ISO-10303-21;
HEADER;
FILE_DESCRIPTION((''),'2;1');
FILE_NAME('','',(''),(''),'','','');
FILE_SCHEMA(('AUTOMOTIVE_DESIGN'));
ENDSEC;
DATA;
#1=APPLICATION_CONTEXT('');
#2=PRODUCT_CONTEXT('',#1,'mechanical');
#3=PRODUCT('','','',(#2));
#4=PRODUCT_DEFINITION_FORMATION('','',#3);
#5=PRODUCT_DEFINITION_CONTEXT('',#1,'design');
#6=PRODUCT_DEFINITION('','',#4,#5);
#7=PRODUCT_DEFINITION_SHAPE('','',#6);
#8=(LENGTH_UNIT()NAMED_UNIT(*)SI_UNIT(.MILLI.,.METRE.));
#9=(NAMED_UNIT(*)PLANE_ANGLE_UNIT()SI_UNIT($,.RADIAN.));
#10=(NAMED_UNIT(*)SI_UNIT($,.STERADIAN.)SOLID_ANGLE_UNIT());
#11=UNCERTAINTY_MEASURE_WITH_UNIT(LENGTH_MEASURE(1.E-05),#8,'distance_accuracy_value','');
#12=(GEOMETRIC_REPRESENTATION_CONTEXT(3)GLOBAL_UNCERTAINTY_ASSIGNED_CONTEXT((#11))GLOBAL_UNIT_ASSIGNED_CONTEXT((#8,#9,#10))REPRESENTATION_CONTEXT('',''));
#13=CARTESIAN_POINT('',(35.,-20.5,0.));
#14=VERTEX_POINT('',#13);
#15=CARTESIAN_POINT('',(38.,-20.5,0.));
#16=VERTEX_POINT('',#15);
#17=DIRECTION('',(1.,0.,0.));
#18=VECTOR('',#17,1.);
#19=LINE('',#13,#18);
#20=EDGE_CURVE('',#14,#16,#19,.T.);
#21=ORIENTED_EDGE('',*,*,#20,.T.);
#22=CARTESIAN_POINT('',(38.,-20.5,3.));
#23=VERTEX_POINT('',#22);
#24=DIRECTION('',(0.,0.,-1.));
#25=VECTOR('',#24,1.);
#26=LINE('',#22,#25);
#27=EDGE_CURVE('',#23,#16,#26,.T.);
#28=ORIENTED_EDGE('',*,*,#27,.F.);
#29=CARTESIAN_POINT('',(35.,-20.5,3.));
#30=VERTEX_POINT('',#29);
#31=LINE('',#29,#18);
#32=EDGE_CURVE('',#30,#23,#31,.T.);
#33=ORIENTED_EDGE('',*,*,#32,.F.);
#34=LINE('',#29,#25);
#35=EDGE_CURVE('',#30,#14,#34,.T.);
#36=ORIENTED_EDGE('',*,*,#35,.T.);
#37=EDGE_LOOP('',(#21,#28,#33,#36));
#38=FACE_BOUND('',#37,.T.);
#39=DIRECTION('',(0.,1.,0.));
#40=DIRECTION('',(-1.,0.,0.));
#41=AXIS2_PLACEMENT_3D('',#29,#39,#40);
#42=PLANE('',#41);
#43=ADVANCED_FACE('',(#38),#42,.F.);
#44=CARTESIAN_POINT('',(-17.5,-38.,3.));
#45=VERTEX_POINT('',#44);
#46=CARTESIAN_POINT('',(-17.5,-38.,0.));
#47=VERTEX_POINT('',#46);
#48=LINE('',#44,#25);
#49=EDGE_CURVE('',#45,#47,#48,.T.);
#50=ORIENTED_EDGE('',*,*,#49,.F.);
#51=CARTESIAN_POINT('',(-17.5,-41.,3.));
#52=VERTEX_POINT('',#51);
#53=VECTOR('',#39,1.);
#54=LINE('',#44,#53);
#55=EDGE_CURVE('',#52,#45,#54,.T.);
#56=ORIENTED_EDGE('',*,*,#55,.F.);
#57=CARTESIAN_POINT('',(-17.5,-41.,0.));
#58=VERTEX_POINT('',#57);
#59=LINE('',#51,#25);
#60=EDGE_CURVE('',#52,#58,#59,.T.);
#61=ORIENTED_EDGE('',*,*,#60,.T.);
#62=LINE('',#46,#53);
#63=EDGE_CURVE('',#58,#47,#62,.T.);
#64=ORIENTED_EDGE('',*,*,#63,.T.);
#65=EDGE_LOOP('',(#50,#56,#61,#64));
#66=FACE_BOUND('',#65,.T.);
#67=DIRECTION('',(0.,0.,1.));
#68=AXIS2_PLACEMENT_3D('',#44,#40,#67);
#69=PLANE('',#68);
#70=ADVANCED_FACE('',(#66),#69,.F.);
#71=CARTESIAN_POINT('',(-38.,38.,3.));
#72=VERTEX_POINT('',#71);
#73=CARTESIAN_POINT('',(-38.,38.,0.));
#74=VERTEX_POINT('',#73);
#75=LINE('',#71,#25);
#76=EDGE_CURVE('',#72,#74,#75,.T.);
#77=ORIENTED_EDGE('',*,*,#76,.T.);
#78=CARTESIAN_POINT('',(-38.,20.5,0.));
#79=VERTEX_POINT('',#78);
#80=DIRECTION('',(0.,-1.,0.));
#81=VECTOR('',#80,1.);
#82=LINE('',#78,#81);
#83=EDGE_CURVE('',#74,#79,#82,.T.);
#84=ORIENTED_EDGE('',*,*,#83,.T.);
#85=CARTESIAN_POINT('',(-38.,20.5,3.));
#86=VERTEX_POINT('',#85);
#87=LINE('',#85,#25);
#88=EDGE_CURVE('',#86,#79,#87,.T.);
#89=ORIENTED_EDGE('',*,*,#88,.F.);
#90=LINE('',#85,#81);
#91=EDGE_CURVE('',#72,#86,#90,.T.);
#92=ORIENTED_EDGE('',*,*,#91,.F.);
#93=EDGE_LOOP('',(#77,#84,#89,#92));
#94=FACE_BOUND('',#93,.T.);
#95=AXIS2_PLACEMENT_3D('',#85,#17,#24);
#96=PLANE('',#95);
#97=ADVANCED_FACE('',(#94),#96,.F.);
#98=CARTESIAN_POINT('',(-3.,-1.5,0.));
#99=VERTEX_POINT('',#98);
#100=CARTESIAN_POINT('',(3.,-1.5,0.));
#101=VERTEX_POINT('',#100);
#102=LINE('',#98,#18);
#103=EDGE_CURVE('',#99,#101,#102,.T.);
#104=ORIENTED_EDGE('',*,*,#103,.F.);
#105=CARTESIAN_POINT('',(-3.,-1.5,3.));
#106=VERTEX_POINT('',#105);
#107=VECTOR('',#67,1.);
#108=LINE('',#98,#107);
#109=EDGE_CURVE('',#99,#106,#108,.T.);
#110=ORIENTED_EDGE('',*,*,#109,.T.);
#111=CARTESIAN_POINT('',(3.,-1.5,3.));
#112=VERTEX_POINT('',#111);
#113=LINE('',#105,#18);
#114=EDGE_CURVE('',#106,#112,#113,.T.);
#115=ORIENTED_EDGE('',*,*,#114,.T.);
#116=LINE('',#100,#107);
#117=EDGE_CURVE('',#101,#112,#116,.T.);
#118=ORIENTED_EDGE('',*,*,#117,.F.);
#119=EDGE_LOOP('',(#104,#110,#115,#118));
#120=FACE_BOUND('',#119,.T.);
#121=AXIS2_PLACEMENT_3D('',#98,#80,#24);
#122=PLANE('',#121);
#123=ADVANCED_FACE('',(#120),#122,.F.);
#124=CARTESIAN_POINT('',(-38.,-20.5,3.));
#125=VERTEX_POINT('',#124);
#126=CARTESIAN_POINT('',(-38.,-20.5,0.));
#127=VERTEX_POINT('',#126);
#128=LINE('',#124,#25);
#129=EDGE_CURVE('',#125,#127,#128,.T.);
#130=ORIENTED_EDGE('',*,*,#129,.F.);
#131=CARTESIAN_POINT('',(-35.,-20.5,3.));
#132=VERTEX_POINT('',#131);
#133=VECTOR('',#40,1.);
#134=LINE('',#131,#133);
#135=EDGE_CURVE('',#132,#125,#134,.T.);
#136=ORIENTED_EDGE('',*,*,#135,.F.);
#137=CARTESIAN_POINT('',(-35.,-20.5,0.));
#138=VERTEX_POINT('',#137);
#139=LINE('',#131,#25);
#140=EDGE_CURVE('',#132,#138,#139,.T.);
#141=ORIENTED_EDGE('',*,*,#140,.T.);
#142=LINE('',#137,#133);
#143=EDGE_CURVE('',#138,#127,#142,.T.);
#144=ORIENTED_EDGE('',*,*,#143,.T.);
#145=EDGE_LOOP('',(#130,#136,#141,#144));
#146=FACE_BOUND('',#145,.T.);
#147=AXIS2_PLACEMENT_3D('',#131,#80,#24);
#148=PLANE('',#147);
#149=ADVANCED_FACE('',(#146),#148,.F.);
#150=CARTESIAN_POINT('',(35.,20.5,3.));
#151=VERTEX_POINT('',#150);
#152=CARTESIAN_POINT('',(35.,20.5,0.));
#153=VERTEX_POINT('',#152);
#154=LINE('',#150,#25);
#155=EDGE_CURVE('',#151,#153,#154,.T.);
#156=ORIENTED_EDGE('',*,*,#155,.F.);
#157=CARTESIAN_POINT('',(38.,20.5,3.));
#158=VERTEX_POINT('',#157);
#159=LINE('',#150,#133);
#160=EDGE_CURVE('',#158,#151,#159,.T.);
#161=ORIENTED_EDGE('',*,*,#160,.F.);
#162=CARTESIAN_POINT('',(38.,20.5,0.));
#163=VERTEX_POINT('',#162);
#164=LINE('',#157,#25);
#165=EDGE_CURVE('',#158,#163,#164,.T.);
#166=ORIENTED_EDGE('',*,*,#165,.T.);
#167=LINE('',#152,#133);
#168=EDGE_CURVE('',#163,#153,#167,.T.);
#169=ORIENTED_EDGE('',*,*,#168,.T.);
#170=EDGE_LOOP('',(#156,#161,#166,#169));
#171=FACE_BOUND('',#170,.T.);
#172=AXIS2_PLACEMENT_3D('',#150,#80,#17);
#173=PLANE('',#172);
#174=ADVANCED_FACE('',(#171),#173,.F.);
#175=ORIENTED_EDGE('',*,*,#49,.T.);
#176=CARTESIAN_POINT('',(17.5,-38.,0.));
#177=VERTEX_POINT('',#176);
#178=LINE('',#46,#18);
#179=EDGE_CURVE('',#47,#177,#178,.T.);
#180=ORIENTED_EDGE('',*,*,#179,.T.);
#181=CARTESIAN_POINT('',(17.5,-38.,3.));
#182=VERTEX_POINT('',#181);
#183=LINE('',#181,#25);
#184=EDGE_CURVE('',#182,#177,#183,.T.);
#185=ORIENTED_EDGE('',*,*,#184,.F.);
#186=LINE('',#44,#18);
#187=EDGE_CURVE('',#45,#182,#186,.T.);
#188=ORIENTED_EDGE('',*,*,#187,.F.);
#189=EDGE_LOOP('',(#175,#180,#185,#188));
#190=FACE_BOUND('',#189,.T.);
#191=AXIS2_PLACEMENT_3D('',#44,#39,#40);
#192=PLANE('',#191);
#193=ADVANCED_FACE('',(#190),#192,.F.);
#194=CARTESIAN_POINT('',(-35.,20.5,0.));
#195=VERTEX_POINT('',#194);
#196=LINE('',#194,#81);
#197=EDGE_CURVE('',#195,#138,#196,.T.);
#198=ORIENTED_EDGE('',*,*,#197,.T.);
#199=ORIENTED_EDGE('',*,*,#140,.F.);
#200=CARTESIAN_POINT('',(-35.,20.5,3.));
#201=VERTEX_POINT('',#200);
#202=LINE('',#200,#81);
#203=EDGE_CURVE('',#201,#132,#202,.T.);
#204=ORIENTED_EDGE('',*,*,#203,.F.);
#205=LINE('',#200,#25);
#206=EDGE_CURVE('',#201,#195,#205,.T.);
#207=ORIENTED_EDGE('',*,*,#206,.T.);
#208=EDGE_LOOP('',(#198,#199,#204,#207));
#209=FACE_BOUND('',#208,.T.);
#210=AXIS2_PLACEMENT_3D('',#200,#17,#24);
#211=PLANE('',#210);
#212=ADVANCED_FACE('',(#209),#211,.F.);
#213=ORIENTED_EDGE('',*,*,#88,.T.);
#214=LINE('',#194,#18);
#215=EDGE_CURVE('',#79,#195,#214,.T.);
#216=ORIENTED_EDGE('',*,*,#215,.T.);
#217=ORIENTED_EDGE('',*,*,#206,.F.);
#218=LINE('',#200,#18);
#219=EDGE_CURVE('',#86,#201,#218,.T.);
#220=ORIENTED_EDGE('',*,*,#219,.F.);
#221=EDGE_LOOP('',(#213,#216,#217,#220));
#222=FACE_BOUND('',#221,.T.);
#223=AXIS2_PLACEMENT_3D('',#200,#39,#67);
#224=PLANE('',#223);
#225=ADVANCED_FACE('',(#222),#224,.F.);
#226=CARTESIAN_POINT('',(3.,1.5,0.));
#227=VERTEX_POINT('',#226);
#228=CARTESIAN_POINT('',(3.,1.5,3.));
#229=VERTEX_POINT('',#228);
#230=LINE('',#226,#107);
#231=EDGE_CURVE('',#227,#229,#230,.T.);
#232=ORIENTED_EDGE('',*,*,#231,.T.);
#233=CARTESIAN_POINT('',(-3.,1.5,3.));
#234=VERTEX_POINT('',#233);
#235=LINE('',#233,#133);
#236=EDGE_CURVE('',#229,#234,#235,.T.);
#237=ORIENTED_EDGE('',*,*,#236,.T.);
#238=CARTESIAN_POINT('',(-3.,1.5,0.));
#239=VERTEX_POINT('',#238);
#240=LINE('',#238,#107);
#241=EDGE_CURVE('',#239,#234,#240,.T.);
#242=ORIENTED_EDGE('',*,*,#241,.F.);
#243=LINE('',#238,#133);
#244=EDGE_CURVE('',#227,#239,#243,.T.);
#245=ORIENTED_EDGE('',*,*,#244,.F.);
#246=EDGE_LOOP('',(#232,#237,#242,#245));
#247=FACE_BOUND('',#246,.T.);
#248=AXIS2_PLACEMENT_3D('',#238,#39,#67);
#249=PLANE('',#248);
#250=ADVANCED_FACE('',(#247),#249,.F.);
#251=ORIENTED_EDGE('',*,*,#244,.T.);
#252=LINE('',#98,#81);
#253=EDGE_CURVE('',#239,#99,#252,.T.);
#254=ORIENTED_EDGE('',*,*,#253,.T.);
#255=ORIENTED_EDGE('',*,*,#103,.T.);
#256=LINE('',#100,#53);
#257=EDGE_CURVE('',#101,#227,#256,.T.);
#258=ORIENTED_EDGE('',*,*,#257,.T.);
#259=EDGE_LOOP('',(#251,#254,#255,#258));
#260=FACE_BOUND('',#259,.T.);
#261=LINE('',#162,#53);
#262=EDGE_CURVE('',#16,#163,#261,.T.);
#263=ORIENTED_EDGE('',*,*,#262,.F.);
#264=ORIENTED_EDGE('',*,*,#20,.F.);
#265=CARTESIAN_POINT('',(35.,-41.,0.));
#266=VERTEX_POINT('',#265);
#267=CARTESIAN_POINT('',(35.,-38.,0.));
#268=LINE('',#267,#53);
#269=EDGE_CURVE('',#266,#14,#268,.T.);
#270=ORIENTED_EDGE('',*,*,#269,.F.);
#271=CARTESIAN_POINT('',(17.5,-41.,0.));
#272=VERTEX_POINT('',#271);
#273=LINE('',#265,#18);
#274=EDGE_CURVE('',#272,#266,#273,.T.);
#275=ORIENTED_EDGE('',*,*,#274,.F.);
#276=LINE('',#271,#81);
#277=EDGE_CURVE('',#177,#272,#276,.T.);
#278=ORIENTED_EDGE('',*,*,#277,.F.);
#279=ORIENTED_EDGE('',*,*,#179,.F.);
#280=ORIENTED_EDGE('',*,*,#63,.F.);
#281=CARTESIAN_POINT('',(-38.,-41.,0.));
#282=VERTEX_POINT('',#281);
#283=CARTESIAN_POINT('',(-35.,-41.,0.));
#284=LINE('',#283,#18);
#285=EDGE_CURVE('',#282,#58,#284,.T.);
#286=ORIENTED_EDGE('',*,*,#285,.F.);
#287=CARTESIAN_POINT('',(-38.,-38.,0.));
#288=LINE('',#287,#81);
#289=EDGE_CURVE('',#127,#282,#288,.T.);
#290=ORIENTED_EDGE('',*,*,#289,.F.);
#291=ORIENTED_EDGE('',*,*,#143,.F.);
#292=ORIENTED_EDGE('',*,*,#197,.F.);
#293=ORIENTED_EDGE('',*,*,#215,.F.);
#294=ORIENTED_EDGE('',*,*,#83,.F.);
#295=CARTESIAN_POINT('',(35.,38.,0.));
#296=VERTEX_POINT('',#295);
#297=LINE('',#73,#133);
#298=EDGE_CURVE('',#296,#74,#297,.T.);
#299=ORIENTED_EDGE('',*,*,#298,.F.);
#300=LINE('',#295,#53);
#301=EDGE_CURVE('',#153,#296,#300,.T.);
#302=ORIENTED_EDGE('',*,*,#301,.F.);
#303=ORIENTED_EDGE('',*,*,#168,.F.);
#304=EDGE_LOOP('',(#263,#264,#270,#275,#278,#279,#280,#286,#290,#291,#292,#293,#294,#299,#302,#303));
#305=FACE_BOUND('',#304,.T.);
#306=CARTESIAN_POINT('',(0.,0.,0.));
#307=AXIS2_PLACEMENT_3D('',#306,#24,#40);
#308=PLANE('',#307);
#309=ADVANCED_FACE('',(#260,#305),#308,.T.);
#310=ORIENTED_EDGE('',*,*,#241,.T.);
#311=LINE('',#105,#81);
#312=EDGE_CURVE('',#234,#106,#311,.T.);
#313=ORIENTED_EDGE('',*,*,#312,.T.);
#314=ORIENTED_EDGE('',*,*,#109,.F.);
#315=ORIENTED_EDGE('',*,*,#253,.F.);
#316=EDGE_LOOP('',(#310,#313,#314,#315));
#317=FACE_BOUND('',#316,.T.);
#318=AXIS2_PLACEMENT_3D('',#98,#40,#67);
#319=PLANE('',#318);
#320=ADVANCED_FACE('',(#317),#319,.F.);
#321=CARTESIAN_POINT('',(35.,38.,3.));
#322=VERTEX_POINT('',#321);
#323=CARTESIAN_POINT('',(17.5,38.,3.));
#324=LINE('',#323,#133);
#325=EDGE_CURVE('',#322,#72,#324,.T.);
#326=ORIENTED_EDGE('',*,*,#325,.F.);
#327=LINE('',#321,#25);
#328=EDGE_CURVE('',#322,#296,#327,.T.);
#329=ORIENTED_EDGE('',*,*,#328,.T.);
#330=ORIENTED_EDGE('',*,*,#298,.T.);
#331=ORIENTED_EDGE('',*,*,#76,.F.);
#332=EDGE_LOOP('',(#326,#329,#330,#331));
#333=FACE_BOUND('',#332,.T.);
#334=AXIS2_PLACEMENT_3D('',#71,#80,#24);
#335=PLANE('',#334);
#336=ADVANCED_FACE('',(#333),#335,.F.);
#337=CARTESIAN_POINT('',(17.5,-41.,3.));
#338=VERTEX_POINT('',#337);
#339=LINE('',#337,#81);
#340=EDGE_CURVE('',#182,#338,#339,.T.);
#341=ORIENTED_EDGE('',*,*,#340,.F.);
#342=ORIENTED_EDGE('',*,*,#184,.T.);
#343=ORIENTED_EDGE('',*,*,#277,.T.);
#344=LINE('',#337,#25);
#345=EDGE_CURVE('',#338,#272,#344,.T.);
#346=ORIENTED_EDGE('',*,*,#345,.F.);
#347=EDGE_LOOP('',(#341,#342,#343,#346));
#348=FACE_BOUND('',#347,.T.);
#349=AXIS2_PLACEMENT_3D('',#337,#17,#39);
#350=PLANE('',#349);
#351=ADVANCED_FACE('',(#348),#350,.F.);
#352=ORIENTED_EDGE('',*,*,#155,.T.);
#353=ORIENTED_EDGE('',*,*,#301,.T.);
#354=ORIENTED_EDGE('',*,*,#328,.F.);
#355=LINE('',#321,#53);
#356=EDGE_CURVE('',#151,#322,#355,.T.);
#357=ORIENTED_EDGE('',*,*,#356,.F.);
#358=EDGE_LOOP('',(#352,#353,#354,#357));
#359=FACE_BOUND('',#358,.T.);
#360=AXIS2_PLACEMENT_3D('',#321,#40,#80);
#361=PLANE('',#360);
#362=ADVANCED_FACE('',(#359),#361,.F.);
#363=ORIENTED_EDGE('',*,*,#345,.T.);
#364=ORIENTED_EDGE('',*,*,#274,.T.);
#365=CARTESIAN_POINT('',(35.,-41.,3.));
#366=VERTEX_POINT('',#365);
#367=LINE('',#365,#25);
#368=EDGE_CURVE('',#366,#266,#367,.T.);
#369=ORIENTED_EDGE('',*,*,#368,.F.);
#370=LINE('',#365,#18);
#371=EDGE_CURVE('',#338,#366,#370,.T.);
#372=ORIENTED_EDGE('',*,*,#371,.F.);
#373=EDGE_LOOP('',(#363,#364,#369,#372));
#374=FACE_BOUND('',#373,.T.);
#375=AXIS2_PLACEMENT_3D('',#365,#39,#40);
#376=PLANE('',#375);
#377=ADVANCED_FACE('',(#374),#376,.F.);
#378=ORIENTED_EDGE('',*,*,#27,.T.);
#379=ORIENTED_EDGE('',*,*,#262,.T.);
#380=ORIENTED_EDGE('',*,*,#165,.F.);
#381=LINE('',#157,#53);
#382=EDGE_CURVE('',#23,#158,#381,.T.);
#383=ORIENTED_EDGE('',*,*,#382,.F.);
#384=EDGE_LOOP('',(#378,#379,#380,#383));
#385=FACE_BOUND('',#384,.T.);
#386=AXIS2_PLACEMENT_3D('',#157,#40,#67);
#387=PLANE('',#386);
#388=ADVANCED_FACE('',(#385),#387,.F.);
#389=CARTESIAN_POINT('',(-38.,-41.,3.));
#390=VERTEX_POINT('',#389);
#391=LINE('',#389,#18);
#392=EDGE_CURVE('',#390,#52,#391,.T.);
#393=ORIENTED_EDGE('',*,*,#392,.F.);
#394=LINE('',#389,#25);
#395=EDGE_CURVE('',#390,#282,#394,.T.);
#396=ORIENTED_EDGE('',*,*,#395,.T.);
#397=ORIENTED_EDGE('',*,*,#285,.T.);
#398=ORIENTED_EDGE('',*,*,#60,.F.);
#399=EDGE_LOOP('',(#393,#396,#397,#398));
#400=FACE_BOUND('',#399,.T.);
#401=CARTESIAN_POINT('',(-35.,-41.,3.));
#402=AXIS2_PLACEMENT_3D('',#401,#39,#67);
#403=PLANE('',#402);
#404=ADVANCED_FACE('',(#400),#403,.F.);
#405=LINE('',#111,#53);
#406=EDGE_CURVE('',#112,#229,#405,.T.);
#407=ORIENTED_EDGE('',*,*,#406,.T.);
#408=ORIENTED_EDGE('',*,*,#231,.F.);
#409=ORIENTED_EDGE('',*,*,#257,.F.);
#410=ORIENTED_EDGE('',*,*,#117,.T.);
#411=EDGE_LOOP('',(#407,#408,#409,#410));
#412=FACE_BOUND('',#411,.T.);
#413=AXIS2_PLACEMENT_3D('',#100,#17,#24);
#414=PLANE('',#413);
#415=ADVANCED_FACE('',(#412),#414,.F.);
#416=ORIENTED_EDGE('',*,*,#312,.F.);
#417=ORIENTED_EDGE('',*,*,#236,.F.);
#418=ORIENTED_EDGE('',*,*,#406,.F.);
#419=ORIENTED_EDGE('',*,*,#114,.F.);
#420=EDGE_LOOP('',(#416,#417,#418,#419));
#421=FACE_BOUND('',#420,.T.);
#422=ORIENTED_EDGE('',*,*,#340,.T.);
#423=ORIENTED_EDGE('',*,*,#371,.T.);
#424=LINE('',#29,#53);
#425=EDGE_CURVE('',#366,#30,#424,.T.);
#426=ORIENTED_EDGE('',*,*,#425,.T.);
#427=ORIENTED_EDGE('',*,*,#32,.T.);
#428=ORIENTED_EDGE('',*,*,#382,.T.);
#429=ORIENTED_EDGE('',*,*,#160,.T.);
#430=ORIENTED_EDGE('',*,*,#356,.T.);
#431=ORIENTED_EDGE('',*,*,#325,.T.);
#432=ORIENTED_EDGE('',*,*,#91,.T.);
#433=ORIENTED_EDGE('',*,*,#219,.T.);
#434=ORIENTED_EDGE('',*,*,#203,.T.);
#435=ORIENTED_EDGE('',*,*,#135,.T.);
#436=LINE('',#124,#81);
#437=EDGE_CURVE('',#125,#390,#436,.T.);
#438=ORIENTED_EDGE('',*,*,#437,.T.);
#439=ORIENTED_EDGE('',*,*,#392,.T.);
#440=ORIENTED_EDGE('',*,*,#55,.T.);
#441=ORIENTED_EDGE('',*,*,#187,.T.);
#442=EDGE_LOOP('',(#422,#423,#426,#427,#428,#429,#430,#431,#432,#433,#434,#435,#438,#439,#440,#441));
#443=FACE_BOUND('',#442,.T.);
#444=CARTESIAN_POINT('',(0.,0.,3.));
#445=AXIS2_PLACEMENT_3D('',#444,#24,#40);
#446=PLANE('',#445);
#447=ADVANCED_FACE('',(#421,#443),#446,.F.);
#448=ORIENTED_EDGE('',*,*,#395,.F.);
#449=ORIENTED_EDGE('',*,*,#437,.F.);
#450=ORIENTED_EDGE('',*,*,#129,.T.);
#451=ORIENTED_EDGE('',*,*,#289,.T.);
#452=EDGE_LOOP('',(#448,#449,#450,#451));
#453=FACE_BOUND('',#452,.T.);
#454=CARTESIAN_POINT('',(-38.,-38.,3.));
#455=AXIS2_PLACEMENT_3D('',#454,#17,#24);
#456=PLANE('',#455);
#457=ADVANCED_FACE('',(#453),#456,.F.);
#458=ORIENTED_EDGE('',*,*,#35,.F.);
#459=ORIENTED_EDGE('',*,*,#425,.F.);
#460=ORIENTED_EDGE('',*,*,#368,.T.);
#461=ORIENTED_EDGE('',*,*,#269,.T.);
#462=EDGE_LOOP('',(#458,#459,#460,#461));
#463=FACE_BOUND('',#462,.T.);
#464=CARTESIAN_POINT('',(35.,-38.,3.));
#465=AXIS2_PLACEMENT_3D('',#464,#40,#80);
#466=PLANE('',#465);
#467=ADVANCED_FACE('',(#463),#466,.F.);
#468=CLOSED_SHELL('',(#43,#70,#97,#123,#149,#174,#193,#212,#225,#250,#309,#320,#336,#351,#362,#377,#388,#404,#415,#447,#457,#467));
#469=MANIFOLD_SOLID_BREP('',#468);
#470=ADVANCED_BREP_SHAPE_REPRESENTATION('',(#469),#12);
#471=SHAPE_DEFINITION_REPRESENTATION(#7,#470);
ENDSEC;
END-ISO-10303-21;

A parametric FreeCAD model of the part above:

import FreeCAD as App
import Part
import Sketcher

V = App.Vector
Q = App.Units.Quantity

doc = App.newDocument("Part")
body = doc.addObject("PartDesign::Body", "Body")

# Sketch on XY plane
sketch1 = doc.addObject("Sketcher::SketchObject", "Sketch")
body.addObject(sketch1)
sketch1.AttachmentSupport = (doc.XY_Plane, [""])
sketch1.MapMode = "FlatFace"
sketch1.addGeometry([
    Part.LineSegment(V(35, 38, 0), V(-38, 38, 0)),  # 0
    Part.LineSegment(V(-38, 38, 0), V(-38, 20.5, 0)),  # 1
    Part.LineSegment(V(-38, 20.5, 0), V(-35, 20.5, 0)),  # 2
    Part.LineSegment(V(-35, 20.5, 0), V(-35, -20.5, 0)),  # 3
    Part.LineSegment(V(-35, -20.5, 0), V(-38, -20.5, 0)),  # 4
    Part.LineSegment(V(-38, -20.5, 0), V(-38, -41, 0)),  # 5
    Part.LineSegment(V(-38, -41, 0), V(-17.5, -41, 0)),  # 6
    Part.LineSegment(V(-17.5, -41, 0), V(-17.5, -38, 0)),  # 7
    Part.LineSegment(V(-17.5, -38, 0), V(17.5, -38, 0)),  # 8
    Part.LineSegment(V(17.5, -38, 0), V(17.5, -41, 0)),  # 9
    Part.LineSegment(V(17.5, -41, 0), V(35, -41, 0)),  # 10
    Part.LineSegment(V(35, -41, 0), V(35, -20.5, 0)),  # 11
    Part.LineSegment(V(35, -20.5, 0), V(38, -20.5, 0)),  # 12
    Part.LineSegment(V(38, -20.5, 0), V(38, 20.5, 0)),  # 13
    Part.LineSegment(V(38, 20.5, 0), V(35, 20.5, 0)),  # 14
    Part.LineSegment(V(35, 20.5, 0), V(35, 38, 0)),  # 15
], False)
sketch1.addConstraint([
    Sketcher.Constraint("Coincident", 0, 2, 1, 1),
    Sketcher.Constraint("Coincident", 1, 2, 2, 1),
    Sketcher.Constraint("Coincident", 2, 2, 3, 1),
    Sketcher.Constraint("Coincident", 3, 2, 4, 1),
    Sketcher.Constraint("Coincident", 4, 2, 5, 1),
    Sketcher.Constraint("Coincident", 5, 2, 6, 1),
    Sketcher.Constraint("Coincident", 6, 2, 7, 1),
    Sketcher.Constraint("Coincident", 7, 2, 8, 1),
    Sketcher.Constraint("Coincident", 8, 2, 9, 1),
    Sketcher.Constraint("Coincident", 9, 2, 10, 1),
    Sketcher.Constraint("Coincident", 10, 2, 11, 1),
    Sketcher.Constraint("Coincident", 11, 2, 12, 1),
    Sketcher.Constraint("Coincident", 12, 2, 13, 1),
    Sketcher.Constraint("Coincident", 13, 2, 14, 1),
    Sketcher.Constraint("Coincident", 14, 2, 15, 1),
    Sketcher.Constraint("Coincident", 15, 2, 0, 1),
    Sketcher.Constraint("Horizontal", 0),
    Sketcher.Constraint("Vertical", 1),
    Sketcher.Constraint("Horizontal", 2),
    Sketcher.Constraint("Vertical", 3),
    Sketcher.Constraint("Horizontal", 4),
    Sketcher.Constraint("Vertical", 5),
    Sketcher.Constraint("Horizontal", 6),
    Sketcher.Constraint("Vertical", 7),
    Sketcher.Constraint("Horizontal", 8),
    Sketcher.Constraint("Vertical", 9),
    Sketcher.Constraint("Horizontal", 10),
    Sketcher.Constraint("Vertical", 11),
    Sketcher.Constraint("Horizontal", 12),
    Sketcher.Constraint("Vertical", 13),
    Sketcher.Constraint("Horizontal", 14),
    Sketcher.Constraint("Vertical", 15),
    Sketcher.Constraint("Symmetric", 2, 2, 11, 2, -1, 1),
    Sketcher.Constraint("Symmetric", 4, 2, 13, 2, -1, 1),
    Sketcher.Constraint("Symmetric", 6, 2, 9, 2, -2),
    Sketcher.Constraint("Symmetric", 1, 2, 13, 2, -2),
    Sketcher.Constraint("Vertical", 11, 2, 14, 2),
    Sketcher.Constraint("Equal", 10, 1),
    Sketcher.Constraint("Equal", 6, 5),
    Sketcher.Constraint("Equal", 14, 7),
    Sketcher.Constraint("DistanceX", 0, 2, 0, 1, Q("73 mm")),
    Sketcher.Constraint("DistanceX", 2, 1, 2, 2, Q("3 mm")),
    Sketcher.Constraint("DistanceX", 8, 1, 8, 2, Q("35 mm")),
    Sketcher.Constraint("DistanceY", 3, 2, 3, 1, Q("41 mm")),
])
pad1 = doc.addObject("PartDesign::Pad", "Pad")
body.addObject(pad1)
pad1.Profile = sketch1
pad1.Length = 3

# Sketch on XY plane
sketch2 = doc.addObject("Sketcher::SketchObject", "Sketch001")
body.addObject(sketch2)
sketch2.AttachmentSupport = (doc.XY_Plane, [""])
sketch2.MapMode = "FlatFace"
sketch2.AttachmentOffset = App.Placement(V(0, 0, 3), App.Rotation())
sketch2.addGeometry([
    Part.LineSegment(V(-3, 1.5, 0), V(-3, -1.5, 0)),
    Part.LineSegment(V(-3, -1.5, 0), V(3, -1.5, 0)),
    Part.LineSegment(V(3, -1.5, 0), V(3, 1.5, 0)),
    Part.LineSegment(V(3, 1.5, 0), V(-3, 1.5, 0)),
], False)
sketch2.addConstraint([
    Sketcher.Constraint("Coincident", 0, 2, 1, 1),
    Sketcher.Constraint("Coincident", 1, 2, 2, 1),
    Sketcher.Constraint("Coincident", 2, 2, 3, 1),
    Sketcher.Constraint("Coincident", 3, 2, 0, 1),
    Sketcher.Constraint("Vertical", 0),
    Sketcher.Constraint("Horizontal", 1),
    Sketcher.Constraint("Vertical", 2),
    Sketcher.Constraint("Horizontal", 3),
    Sketcher.Constraint("Symmetric", 0, 2, 2, 2, -1, 1),
    Sketcher.Constraint("DistanceX", 1, 1, 1, 2, Q("6 mm")),
    Sketcher.Constraint("DistanceY", 0, 2, 0, 1, Q("3 mm")),
])
pocket1 = doc.addObject("PartDesign::Pocket", "Pocket")
body.addObject(pocket1)
pocket1.Profile = sketch2
pocket1.Length = 3

doc.recompute()
